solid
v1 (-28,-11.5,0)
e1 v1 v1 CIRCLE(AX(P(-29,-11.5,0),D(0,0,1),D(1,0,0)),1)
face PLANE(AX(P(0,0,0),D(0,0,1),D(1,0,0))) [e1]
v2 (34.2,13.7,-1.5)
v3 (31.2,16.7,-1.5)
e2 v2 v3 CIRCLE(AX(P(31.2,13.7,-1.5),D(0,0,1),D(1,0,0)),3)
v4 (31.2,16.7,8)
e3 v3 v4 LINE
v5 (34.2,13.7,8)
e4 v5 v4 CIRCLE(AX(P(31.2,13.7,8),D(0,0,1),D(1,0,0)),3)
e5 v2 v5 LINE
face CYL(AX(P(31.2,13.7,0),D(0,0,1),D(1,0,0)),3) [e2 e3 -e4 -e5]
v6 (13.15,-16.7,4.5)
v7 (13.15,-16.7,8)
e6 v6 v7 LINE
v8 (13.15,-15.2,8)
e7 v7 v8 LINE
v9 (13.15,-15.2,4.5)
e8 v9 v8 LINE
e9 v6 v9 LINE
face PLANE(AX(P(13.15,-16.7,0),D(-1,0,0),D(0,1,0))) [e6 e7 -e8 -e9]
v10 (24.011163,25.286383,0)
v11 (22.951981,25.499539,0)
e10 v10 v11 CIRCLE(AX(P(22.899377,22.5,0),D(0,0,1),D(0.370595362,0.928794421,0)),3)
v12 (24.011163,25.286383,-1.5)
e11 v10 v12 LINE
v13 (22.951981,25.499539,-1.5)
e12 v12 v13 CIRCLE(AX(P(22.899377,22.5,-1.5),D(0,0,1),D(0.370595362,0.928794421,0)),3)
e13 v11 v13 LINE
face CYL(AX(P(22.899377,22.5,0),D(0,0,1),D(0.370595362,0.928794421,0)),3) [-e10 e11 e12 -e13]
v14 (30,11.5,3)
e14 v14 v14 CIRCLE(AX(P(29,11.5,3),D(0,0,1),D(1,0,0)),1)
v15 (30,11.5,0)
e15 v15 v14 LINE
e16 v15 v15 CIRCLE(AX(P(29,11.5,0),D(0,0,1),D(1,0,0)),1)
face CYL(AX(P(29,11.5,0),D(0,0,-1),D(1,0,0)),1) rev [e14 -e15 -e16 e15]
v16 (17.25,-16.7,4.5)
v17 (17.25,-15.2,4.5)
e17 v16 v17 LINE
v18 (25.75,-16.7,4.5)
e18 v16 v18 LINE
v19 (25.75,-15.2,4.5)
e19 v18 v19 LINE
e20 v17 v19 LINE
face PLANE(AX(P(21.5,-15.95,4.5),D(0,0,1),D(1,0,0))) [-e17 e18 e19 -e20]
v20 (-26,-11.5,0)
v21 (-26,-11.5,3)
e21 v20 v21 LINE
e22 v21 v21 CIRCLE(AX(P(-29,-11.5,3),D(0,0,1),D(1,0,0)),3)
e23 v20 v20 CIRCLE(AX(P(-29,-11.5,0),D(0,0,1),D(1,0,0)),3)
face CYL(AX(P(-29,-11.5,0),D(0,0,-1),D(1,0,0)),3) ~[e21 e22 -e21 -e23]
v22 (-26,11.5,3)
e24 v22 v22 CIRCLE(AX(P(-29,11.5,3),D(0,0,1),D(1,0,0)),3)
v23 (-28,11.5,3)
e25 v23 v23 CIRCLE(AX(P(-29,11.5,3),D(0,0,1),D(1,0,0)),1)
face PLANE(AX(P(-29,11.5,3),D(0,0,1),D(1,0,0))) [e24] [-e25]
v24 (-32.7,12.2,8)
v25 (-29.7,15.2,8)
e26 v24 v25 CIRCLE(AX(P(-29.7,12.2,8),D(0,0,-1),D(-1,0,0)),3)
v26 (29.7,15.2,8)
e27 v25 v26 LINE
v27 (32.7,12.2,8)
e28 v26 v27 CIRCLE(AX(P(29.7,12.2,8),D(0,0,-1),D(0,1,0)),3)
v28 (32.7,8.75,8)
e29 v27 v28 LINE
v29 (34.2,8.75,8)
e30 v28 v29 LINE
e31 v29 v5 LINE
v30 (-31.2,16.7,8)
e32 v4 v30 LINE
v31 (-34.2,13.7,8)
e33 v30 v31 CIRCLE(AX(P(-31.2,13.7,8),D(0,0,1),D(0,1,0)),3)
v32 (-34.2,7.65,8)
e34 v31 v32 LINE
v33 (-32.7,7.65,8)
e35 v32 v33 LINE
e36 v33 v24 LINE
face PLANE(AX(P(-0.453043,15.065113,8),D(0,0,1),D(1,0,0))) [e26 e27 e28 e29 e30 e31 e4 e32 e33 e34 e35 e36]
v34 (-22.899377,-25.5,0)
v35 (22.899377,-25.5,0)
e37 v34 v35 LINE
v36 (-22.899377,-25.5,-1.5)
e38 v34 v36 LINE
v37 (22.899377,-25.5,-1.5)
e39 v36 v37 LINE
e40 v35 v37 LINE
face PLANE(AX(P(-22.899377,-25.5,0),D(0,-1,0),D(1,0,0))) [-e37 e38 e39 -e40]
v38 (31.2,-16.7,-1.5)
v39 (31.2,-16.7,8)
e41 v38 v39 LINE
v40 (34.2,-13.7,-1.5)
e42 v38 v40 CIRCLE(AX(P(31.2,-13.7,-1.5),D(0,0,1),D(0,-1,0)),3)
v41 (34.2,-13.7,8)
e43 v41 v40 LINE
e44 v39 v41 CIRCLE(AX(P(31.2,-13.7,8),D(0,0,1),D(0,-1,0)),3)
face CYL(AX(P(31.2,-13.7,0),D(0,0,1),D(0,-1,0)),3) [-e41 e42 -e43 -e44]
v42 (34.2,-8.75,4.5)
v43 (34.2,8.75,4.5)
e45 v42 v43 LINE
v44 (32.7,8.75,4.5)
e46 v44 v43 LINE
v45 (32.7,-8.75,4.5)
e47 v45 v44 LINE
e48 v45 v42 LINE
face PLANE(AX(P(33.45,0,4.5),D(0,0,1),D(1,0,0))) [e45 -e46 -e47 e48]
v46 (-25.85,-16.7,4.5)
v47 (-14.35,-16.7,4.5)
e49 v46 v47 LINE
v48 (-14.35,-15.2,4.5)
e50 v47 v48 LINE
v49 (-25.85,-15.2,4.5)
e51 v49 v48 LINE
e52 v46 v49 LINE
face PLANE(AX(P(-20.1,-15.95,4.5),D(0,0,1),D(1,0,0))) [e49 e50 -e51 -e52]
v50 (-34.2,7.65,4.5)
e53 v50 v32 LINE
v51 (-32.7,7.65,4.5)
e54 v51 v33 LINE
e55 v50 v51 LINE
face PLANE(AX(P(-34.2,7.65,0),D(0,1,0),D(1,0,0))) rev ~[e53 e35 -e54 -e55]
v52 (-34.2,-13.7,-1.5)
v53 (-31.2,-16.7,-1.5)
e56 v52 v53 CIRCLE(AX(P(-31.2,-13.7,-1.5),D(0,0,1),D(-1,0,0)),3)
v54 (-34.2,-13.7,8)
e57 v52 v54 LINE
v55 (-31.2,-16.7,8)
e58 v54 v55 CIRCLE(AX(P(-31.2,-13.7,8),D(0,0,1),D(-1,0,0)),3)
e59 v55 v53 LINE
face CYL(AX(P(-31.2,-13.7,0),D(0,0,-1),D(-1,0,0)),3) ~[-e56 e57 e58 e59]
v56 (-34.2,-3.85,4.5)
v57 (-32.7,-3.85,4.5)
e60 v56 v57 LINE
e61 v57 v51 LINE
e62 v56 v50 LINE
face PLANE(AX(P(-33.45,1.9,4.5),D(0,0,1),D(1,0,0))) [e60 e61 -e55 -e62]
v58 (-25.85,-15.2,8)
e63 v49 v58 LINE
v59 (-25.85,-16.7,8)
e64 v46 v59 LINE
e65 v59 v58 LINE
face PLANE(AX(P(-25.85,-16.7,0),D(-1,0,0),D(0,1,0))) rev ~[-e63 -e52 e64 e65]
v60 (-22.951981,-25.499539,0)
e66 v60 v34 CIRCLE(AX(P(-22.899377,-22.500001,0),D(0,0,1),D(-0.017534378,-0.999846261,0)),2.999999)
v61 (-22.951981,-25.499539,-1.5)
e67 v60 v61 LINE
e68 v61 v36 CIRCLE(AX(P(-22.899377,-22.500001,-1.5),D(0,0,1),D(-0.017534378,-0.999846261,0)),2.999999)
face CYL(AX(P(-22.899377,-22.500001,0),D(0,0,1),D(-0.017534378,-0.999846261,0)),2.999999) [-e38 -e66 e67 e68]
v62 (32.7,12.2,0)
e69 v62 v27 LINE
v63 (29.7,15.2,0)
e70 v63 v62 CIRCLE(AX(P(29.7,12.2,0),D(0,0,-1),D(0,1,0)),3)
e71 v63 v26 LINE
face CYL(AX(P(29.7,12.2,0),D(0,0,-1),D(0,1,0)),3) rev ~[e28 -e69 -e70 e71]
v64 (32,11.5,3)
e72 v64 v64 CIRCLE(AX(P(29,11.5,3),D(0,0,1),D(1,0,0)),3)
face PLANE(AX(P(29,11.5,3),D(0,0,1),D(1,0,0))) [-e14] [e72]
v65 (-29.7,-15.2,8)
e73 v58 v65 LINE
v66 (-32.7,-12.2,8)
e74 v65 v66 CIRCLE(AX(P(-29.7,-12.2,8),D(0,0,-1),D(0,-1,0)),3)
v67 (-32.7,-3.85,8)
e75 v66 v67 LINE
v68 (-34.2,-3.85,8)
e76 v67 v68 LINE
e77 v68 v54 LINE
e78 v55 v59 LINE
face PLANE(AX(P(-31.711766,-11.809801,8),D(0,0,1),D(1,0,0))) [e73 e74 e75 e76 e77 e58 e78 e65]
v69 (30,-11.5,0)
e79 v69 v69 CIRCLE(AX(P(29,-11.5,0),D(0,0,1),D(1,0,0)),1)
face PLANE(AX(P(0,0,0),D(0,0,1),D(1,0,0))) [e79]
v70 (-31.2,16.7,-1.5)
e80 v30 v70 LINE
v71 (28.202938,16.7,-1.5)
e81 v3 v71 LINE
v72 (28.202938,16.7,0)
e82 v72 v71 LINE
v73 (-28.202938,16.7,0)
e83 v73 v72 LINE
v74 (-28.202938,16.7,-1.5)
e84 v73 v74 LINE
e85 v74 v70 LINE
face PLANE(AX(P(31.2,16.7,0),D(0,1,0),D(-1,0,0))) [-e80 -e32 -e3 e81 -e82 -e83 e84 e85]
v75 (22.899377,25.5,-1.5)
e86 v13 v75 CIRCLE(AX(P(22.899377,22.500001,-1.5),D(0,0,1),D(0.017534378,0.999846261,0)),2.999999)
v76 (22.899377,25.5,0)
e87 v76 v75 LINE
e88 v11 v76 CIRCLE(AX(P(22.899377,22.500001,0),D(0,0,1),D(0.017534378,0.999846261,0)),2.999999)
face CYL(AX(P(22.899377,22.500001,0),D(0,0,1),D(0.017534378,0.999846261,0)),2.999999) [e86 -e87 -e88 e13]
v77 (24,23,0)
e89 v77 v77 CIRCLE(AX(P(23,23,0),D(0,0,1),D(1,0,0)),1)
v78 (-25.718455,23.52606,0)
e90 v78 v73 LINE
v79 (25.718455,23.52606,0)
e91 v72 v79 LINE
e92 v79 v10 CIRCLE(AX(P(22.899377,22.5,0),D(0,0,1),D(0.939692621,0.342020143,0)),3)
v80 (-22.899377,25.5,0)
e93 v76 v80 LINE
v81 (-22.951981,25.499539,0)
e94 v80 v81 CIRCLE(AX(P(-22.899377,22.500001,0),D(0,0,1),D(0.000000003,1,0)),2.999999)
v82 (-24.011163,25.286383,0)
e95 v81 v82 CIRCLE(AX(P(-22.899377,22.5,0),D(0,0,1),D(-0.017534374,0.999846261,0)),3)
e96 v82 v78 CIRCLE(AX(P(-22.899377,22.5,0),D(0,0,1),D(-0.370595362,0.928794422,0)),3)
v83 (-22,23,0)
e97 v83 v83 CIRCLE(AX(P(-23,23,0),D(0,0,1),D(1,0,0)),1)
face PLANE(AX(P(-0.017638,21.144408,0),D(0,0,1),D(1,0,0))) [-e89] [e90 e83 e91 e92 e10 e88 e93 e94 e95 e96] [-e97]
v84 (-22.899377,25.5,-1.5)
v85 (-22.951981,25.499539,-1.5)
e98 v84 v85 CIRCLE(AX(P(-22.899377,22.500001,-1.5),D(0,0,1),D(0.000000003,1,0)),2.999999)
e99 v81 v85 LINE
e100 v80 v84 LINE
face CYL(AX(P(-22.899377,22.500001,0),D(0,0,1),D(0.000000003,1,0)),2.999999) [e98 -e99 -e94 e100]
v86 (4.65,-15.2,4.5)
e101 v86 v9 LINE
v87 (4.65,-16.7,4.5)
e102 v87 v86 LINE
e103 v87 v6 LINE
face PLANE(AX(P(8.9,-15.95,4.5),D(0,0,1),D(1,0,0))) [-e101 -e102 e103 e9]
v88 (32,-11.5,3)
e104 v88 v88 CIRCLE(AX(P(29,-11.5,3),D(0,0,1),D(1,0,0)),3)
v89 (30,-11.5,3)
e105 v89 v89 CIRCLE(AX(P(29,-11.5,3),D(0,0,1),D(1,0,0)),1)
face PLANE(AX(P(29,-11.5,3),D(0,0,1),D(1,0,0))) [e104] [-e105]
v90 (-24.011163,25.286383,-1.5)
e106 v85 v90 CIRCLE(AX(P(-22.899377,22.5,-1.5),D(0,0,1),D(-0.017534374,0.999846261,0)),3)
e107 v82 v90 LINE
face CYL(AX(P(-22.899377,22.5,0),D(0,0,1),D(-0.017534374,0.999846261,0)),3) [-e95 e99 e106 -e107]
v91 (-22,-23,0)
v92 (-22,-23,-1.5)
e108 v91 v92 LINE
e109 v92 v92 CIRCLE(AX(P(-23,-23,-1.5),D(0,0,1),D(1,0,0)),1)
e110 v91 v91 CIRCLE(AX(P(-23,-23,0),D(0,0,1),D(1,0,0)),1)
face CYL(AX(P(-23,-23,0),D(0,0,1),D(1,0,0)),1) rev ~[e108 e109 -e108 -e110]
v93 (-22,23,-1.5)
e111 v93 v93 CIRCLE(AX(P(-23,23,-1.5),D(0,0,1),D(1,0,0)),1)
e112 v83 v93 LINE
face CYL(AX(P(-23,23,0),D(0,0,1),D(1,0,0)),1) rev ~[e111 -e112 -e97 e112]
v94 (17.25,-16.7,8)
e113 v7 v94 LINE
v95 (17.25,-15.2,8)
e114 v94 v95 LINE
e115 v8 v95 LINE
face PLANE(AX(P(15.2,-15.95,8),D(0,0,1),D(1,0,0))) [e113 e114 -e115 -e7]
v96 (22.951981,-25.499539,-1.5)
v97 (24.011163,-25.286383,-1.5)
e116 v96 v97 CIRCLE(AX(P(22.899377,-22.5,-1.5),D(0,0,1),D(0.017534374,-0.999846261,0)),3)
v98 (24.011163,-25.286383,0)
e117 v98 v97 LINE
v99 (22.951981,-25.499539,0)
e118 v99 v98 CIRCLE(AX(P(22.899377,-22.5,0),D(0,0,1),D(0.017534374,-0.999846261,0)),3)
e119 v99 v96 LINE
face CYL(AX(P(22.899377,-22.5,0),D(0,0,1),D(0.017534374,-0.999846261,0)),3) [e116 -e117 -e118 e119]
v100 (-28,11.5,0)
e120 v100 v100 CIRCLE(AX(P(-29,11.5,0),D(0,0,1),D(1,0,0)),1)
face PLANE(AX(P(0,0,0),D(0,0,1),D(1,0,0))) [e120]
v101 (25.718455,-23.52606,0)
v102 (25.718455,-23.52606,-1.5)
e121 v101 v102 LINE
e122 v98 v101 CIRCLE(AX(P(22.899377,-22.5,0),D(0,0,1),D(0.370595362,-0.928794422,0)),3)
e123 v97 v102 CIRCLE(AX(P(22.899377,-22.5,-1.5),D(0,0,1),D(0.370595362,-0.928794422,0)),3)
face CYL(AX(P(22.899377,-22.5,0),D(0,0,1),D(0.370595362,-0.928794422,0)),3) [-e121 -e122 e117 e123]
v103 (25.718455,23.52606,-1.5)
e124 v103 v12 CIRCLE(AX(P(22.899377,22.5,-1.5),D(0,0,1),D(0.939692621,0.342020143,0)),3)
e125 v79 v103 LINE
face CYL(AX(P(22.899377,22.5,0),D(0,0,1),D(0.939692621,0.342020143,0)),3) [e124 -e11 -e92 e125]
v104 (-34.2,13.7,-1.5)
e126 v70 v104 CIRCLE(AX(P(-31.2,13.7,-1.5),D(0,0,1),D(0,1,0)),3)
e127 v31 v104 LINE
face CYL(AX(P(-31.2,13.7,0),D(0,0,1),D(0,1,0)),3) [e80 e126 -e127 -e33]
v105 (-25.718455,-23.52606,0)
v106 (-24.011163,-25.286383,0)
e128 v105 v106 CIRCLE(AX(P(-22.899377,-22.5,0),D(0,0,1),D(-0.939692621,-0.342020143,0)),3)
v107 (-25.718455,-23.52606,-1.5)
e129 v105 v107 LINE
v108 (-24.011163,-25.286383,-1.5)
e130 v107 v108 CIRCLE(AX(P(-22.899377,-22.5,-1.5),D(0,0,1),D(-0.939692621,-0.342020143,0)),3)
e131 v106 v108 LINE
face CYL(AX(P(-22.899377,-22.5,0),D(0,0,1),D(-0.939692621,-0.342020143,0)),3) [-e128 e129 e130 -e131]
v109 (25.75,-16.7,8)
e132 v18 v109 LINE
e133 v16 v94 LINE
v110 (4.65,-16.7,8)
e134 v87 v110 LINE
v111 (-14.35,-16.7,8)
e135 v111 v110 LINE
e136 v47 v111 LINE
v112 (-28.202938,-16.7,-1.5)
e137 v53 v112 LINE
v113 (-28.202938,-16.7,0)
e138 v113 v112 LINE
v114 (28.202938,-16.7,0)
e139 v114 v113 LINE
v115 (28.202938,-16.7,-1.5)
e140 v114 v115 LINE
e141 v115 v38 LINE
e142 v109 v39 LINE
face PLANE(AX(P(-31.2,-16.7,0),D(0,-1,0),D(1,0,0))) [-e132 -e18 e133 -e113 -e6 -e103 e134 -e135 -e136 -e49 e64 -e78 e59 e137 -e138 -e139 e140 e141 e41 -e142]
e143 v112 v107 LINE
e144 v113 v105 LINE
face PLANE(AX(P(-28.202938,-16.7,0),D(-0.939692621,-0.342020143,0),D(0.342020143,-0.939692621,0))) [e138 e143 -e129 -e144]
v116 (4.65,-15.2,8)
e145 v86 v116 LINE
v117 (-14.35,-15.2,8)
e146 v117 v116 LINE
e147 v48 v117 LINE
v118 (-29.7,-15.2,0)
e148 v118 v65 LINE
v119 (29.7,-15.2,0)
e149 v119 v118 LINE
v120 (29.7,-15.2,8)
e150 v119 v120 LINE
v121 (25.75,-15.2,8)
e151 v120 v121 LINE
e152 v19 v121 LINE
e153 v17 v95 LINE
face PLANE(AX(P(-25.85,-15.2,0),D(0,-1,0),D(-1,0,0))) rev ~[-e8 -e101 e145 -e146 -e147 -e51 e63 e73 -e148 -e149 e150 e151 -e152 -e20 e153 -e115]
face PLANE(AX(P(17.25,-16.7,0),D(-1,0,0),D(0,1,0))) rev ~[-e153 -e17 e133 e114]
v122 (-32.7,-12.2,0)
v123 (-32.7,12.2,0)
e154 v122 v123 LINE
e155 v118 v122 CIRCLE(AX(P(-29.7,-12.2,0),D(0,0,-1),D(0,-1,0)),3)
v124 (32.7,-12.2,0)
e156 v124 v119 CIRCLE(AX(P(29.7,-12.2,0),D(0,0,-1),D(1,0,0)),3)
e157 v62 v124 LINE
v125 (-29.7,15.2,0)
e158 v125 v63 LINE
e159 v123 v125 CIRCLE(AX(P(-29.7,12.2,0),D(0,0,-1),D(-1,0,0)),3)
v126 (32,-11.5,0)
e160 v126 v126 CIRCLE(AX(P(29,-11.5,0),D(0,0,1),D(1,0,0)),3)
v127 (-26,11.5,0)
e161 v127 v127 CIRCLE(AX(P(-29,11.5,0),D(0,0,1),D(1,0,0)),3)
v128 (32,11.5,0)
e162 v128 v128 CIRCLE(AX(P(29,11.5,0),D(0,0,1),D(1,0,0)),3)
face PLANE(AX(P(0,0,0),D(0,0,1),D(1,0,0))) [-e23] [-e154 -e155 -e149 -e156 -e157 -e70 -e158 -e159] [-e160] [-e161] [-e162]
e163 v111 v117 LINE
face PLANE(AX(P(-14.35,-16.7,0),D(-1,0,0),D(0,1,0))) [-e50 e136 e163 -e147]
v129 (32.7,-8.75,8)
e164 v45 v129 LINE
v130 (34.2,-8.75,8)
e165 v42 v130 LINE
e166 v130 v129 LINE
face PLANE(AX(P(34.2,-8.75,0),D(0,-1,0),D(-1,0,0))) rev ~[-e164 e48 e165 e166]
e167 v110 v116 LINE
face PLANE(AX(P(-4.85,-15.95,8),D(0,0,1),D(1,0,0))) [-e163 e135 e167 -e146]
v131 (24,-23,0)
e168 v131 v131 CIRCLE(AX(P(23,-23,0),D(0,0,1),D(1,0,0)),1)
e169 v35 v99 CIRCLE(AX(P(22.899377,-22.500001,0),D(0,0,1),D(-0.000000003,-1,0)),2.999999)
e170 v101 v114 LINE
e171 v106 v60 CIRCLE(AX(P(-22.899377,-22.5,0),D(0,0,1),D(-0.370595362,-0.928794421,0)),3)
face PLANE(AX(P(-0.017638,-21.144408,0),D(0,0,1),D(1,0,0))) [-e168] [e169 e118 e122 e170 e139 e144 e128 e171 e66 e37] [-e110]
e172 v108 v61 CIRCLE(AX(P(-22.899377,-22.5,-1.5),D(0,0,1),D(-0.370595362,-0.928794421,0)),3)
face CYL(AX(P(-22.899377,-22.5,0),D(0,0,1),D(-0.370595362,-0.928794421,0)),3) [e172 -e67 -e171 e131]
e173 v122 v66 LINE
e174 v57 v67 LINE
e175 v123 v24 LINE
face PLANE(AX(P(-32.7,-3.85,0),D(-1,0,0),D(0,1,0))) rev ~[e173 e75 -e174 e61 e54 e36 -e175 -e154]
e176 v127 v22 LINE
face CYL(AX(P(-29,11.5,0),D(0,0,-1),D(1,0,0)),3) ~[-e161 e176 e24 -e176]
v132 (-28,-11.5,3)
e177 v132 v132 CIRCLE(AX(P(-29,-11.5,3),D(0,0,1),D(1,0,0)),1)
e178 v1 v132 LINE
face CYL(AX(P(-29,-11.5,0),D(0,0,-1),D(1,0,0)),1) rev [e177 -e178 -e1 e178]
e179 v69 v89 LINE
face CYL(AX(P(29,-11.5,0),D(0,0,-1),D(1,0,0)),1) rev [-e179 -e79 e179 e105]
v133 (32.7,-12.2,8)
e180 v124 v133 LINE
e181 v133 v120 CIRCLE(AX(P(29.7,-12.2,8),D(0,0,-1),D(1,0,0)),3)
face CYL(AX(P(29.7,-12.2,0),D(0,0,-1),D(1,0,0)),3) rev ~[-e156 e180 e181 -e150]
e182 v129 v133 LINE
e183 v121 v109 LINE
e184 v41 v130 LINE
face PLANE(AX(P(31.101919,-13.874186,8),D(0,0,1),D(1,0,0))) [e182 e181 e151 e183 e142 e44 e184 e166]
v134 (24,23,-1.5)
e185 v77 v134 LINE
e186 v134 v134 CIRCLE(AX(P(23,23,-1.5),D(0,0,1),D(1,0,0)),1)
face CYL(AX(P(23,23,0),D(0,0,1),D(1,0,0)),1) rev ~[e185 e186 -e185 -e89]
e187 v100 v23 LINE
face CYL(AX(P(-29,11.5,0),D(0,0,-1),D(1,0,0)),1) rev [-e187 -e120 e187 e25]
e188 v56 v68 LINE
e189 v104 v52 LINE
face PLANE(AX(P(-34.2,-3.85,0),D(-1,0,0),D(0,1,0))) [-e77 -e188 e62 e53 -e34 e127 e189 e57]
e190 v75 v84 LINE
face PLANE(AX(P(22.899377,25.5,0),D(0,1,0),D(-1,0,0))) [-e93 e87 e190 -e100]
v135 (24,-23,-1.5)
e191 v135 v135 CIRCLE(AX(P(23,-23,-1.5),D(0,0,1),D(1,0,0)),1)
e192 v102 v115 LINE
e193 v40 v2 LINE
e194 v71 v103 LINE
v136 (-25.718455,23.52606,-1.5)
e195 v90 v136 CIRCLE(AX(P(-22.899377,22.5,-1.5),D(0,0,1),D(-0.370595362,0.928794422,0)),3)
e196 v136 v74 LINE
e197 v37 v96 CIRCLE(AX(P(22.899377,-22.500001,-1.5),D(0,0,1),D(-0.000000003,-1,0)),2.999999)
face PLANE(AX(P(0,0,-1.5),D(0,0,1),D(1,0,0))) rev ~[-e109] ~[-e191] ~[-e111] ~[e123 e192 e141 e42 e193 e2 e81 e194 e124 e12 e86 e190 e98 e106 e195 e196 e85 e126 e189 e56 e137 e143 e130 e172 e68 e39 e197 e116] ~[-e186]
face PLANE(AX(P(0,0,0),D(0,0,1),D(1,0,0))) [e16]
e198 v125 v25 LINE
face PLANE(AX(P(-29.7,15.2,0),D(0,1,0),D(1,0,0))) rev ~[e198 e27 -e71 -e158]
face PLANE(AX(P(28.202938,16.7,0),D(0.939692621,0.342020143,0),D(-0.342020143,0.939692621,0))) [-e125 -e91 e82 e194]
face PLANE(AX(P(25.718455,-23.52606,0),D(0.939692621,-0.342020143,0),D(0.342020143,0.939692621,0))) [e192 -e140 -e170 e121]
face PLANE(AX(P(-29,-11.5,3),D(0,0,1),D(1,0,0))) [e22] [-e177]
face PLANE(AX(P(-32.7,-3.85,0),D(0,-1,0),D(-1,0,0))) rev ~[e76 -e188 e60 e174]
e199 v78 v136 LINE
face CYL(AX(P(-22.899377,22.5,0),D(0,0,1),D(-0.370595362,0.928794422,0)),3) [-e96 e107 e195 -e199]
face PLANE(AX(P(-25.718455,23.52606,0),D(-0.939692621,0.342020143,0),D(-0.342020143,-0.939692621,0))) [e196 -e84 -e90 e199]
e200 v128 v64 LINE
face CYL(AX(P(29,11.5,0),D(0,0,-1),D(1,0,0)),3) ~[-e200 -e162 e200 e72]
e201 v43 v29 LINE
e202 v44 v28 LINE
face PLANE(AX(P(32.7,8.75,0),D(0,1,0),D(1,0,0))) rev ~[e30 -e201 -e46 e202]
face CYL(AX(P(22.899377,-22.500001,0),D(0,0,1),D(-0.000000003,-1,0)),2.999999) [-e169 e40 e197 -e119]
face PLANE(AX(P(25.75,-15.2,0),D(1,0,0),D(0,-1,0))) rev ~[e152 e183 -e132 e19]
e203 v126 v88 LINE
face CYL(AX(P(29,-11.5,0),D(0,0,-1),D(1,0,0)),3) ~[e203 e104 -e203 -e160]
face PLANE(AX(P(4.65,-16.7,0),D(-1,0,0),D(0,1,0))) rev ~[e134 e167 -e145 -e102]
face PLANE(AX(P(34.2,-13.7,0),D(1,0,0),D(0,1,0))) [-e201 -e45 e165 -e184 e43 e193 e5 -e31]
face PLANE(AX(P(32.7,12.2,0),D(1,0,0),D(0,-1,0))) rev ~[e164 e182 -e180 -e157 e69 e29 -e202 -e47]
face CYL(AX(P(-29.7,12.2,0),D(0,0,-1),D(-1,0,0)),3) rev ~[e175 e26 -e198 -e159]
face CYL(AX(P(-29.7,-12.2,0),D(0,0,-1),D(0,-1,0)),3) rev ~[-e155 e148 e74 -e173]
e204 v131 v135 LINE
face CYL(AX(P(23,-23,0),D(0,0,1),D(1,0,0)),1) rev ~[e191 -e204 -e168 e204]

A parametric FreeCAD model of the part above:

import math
import FreeCAD as App
import Part
import Sketcher
from FreeCAD import Vector
Q = App.Units.Quantity

doc = App.newDocument("Part")
body = doc.addObject("PartDesign::Body", "Body")

sketch1 = body.newObject("Sketcher::SketchObject", "Sketch")
sketch1.AttachmentSupport = (doc.getObject("XY_Plane"), [""])
sketch1.MapMode = "FlatFace"
sketch1.addGeometry([
    Part.ArcOfCircle(Part.Circle(Vector(31.2, 13.7, 0), Vector(0, 0, 1), 3), math.radians(0), math.radians(90)),
    Part.LineSegment(Vector(31.2, 16.7, 0), Vector(-31.2, 16.7, 0)),
    Part.ArcOfCircle(Part.Circle(Vector(-31.2, 13.7, 0), Vector(0, 0, 1), 3), math.radians(90), math.radians(180)),
    Part.LineSegment(Vector(-34.2, 13.7, 0), Vector(-34.2, -13.7, 0)),
    Part.ArcOfCircle(Part.Circle(Vector(-31.2, -13.7, 0), Vector(0, 0, 1), 3), math.radians(180), math.radians(270)),
    Part.LineSegment(Vector(-31.2, -16.7, 0), Vector(31.2, -16.7, 0)),
    Part.ArcOfCircle(Part.Circle(Vector(31.2, -13.7, 0), Vector(0, 0, 1), 3), math.radians(-90), math.radians(0)),
    Part.LineSegment(Vector(34.2, -13.7, 0), Vector(34.2, 13.7, 0)),
], False)
sketch1.addConstraint([
    Sketcher.Constraint("Tangent", 0, 2, 1, 1),
    Sketcher.Constraint("Tangent", 1, 2, 2, 1),
    Sketcher.Constraint("Tangent", 2, 2, 3, 1),
    Sketcher.Constraint("Tangent", 3, 2, 4, 1),
    Sketcher.Constraint("Tangent", 4, 2, 5, 1),
    Sketcher.Constraint("Tangent", 5, 2, 6, 1),
    Sketcher.Constraint("Tangent", 6, 2, 7, 1),
    Sketcher.Constraint("Tangent", 7, 2, 0, 1),
    Sketcher.Constraint("Horizontal", 1),
    Sketcher.Constraint("Vertical", 3),
    Sketcher.Constraint("Horizontal", 5),
    Sketcher.Constraint("Vertical", 7),
    Sketcher.Constraint("Equal", 0, 2),
    Sketcher.Constraint("Equal", 2, 4),
    Sketcher.Constraint("Equal", 4, 6),
    Sketcher.Constraint("Symmetric", 0, 3, 4, 3, -1, 1),
    Sketcher.Constraint("Radius", 0, 3.0),
    Sketcher.Constraint("DistanceX", 1, 2, 1, 1, 62.4),
    Sketcher.Constraint("DistanceY", 3, 2, 3, 1, 27.4),
])
pad1 = body.newObject("PartDesign::Pad", "Pad")
pad1.Profile = sketch1
pad1.Length = 1.5
pad1.Reversed = True

sketch2 = body.newObject("Sketcher::SketchObject", "Sketch001")
sketch2.AttachmentSupport = (doc.getObject("XY_Plane"), [""])
sketch2.MapMode = "FlatFace"
sketch2.addGeometry([
    Part.Circle(Vector(-29, 11.5, 0), Vector(0, 0, 1), 3),
    Part.Circle(Vector(-29, 11.5, 0), Vector(0, 0, 1), 1),
    Part.Circle(Vector(-29, -11.5, 0), Vector(0, 0, 1), 3),
    Part.Circle(Vector(-29, -11.5, 0), Vector(0, 0, 1), 1),
    Part.Circle(Vector(29, 11.5, 0), Vector(0, 0, 1), 3),
    Part.Circle(Vector(29, 11.5, 0), Vector(0, 0, 1), 1),
    Part.Circle(Vector(29, -11.5, 0), Vector(0, 0, 1), 3),
    Part.Circle(Vector(29, -11.5, 0), Vector(0, 0, 1), 1),
], False)
sketch2.addConstraint([
    Sketcher.Constraint("Coincident", 1, 3, 0, 3),
    Sketcher.Constraint("Coincident", 3, 3, 2, 3),
    Sketcher.Constraint("Coincident", 5, 3, 4, 3),
    Sketcher.Constraint("Coincident", 7, 3, 6, 3),
    Sketcher.Constraint("Equal", 0, 2),
    Sketcher.Constraint("Equal", 1, 3),
    Sketcher.Constraint("Equal", 2, 4),
    Sketcher.Constraint("Equal", 3, 5),
    Sketcher.Constraint("Equal", 4, 6),
    Sketcher.Constraint("Equal", 5, 7),
    Sketcher.Constraint("Symmetric", 2, 3, 4, 3, -1, 1),
    Sketcher.Constraint("Symmetric", 0, 3, 6, 3, -1, 1),
    Sketcher.Constraint("Symmetric", 0, 3, 4, 3, -2),
    Sketcher.Constraint("Diameter", 0, 6.0),
    Sketcher.Constraint("Diameter", 1, 2.0),
    Sketcher.Constraint("DistanceX", 0, 3, -1, 1, 29.0),
    Sketcher.Constraint("DistanceY", 2, 3, 0, 3, 23.0),
])
pad2 = body.newObject("PartDesign::Pad", "Pad001")
pad2.Profile = sketch2
pad2.Length = 3

sketch3 = body.newObject("Sketcher::SketchObject", "Sketch002")
sketch3.AttachmentSupport = (doc.getObject("XY_Plane"), [""])
sketch3.MapMode = "FlatFace"
sketch3.addGeometry([
    Part.LineSegment(Vector(-32.7, -12.2, 0), Vector(-32.7, -3.9, 0)),
    Part.LineSegment(Vector(-32.7, -3.9, 0), Vector(-34.2, -3.9, 0)),
    Part.LineSegment(Vector(-34.2, -3.9, 0), Vector(-34.2, -13.7, 0)),
    Part.ArcOfCircle(Part.Circle(Vector(-31.2, -13.7, 0), Vector(0, 0, 1), 3), math.radians(180), math.radians(270)),
    Part.LineSegment(Vector(-31.2, -16.7, 0), Vector(-25.9, -16.7, 0)),
    Part.LineSegment(Vector(-25.9, -16.7, 0), Vector(-25.9, -15.2, 0)),
    Part.LineSegment(Vector(-25.9, -15.2, 0), Vector(-29.7, -15.2, 0)),
    Part.ArcOfCircle(Part.Circle(Vector(-29.7, -12.2, 0), Vector(0, 0, 1), 3), math.radians(180), math.radians(270)),
    Part.ArcOfCircle(Part.Circle(Vector(-29.7, 12.2, 0), Vector(0, 0, 1), 3), math.radians(90), math.radians(180)),
    Part.LineSegment(Vector(-29.7, 15.2, 0), Vector(29.7, 15.2, 0)),
    Part.ArcOfCircle(Part.Circle(Vector(29.7, 12.2, 0), Vector(0, 0, 1), 3), math.radians(0), math.radians(90)),
    Part.LineSegment(Vector(32.7, 12.2, 0), Vector(32.7, 8.8, 0)),
    Part.LineSegment(Vector(32.7, 8.8, 0), Vector(34.2, 8.8, 0)),
    Part.LineSegment(Vector(34.2, 8.8, 0), Vector(34.2, 13.7, 0)),
    Part.ArcOfCircle(Part.Circle(Vector(31.2, 13.7, 0), Vector(0, 0, 1), 3), math.radians(0), math.radians(90)),
    Part.LineSegment(Vector(31.2, 16.7, 0), Vector(-31.2, 16.7, 0)),
    Part.ArcOfCircle(Part.Circle(Vector(-31.2, 13.7, 0), Vector(0, 0, 1), 3), math.radians(90), math.radians(180)),
    Part.LineSegment(Vector(-34.2, 13.7, 0), Vector(-34.2, 7.7, 0)),
    Part.LineSegment(Vector(-34.2, 7.7, 0), Vector(-32.7, 7.7, 0)),
    Part.LineSegment(Vector(-32.7, 7.7, 0), Vector(-32.7, 12.2, 0)),
    Part.LineSegment(Vector(-14.3, -15.2, 0), Vector(-14.3, -16.7, 0)),
    Part.LineSegment(Vector(-14.3, -16.7, 0), Vector(4.7, -16.7, 0)),
    Part.LineSegment(Vector(4.7, -16.7, 0), Vector(4.7, -15.2, 0)),
    Part.LineSegment(Vector(4.7, -15.2, 0), Vector(-14.3, -15.2, 0)),
    Part.LineSegment(Vector(13.2, -15.2, 0), Vector(13.2, -16.7, 0)),
    Part.LineSegment(Vector(13.2, -16.7, 0), Vector(17.2, -16.7, 0)),
    Part.LineSegment(Vector(17.2, -16.7, 0), Vector(17.2, -15.2, 0)),
    Part.LineSegment(Vector(17.2, -15.2, 0), Vector(13.2, -15.2, 0)),
    Part.LineSegment(Vector(34.2, -8.8, 0), Vector(32.7, -8.8, 0)),
    Part.LineSegment(Vector(32.7, -8.8, 0), Vector(32.7, -12.2, 0)),
    Part.ArcOfCircle(Part.Circle(Vector(29.7, -12.2, 0), Vector(0, 0, 1), 3), math.radians(-90), math.radians(0)),
    Part.LineSegment(Vector(29.7, -15.2, 0), Vector(25.8, -15.2, 0)),
    Part.LineSegment(Vector(25.8, -15.2, 0), Vector(25.8, -16.7, 0)),
    Part.LineSegment(Vector(25.8, -16.7, 0), Vector(31.2, -16.7, 0)),
    Part.ArcOfCircle(Part.Circle(Vector(31.2, -13.7, 0), Vector(0, 0, 1), 3), math.radians(-90), math.radians(0)),
    Part.LineSegment(Vector(34.2, -13.7, 0), Vector(34.2, -8.8, 0)),
], False)
sketch3.addConstraint([
    Sketcher.Constraint("Coincident", 0, 2, 1, 1),
    Sketcher.Constraint("Coincident", 1, 2, 2, 1),
    Sketcher.Constraint("Tangent", 2, 2, 3, 1),
    Sketcher.Constraint("Tangent", 3, 2, 4, 1),
    Sketcher.Constraint("Coincident", 4, 2, 5, 1),
    Sketcher.Constraint("Coincident", 5, 2, 6, 1),
    Sketcher.Constraint("Tangent", 6, 2, 7, 2),
    Sketcher.Constraint("Tangent", 7, 1, 0, 1),
    Sketcher.Constraint("Tangent", 8, 1, 9, 1),
    Sketcher.Constraint("Tangent", 9, 2, 10, 2),
    Sketcher.Constraint("Tangent", 10, 1, 11, 1),
    Sketcher.Constraint("Coincident", 11, 2, 12, 1),
    Sketcher.Constraint("Coincident", 12, 2, 13, 1),
    Sketcher.Constraint("Tangent", 13, 2, 14, 1),
    Sketcher.Constraint("Tangent", 14, 2, 15, 1),
    Sketcher.Constraint("Tangent", 15, 2, 16, 1),
    Sketcher.Constraint("Tangent", 16, 2, 17, 1),
    Sketcher.Constraint("Coincident", 17, 2, 18, 1),
    Sketcher.Constraint("Coincident", 18, 2, 19, 1),
    Sketcher.Constraint("Tangent", 19, 2, 8, 2),
    Sketcher.Constraint("Coincident", 20, 2, 21, 1),
    Sketcher.Constraint("Coincident", 21, 2, 22, 1),
    Sketcher.Constraint("Coincident", 22, 2, 23, 1),
    Sketcher.Constraint("Coincident", 23, 2, 20, 1),
    Sketcher.Constraint("Coincident", 24, 2, 25, 1),
    Sketcher.Constraint("Coincident", 25, 2, 26, 1),
    Sketcher.Constraint("Coincident", 26, 2, 27, 1),
    Sketcher.Constraint("Coincident", 27, 2, 24, 1),
    Sketcher.Constraint("Coincident", 28, 2, 29, 1),
    Sketcher.Constraint("Tangent", 29, 2, 30, 2),
    Sketcher.Constraint("Tangent", 30, 1, 31, 1),
    Sketcher.Constraint("Coincident", 31, 2, 32, 1),
    Sketcher.Constraint("Coincident", 32, 2, 33, 1),
    Sketcher.Constraint("Tangent", 33, 2, 34, 1),
    Sketcher.Constraint("Tangent", 34, 2, 35, 1),
    Sketcher.Constraint("Coincident", 35, 2, 28, 1),
    Sketcher.Constraint("Vertical", 0),
    Sketcher.Constraint("Horizontal", 1),
    Sketcher.Constraint("Vertical", 2),
    Sketcher.Constraint("Horizontal", 4),
    Sketcher.Constraint("Vertical", 5),
    Sketcher.Constraint("Horizontal", 6),
    Sketcher.Constraint("Horizontal", 9),
    Sketcher.Constraint("Vertical", 11),
    Sketcher.Constraint("Horizontal", 12),
    Sketcher.Constraint("Vertical", 13),
    Sketcher.Constraint("Horizontal", 15),
    Sketcher.Constraint("Vertical", 17),
    Sketcher.Constraint("Horizontal", 18),
    Sketcher.Constraint("Vertical", 19),
    Sketcher.Constraint("Vertical", 20),
    Sketcher.Constraint("Horizontal", 21),
    Sketcher.Constraint("Vertical", 22),
    Sketcher.Constraint("Horizontal", 23),
    Sketcher.Constraint("Vertical", 24),
    Sketcher.Constraint("Horizontal", 25),
    Sketcher.Constraint("Vertical", 26),
    Sketcher.Constraint("Horizontal", 27),
    Sketcher.Constraint("Horizontal", 28),
    Sketcher.Constraint("Vertical", 29),
    Sketcher.Constraint("Horizontal", 31),
    Sketcher.Constraint("Vertical", 32),
    Sketcher.Constraint("Horizontal", 33),
    Sketcher.Constraint("Vertical", 35),
    Sketcher.Constraint("Equal", 3, 7),
    Sketcher.Constraint("Equal", 7, 8),
    Sketcher.Constraint("Equal", 8, 10),
    Sketcher.Constraint("Equal", 10, 14),
    Sketcher.Constraint("Equal", 14, 16),
    Sketcher.Constraint("Equal", 16, 30),
    Sketcher.Constraint("Equal", 30, 34),
    Sketcher.Constraint("Symmetric", 7, 3, 10, 3, -1, 1),
    Sketcher.Constraint("Symmetric", 3, 3, 14, 3, -1, 1),
    Sketcher.Constraint("Symmetric", 8, 3, 30, 3, -1, 1),
    Sketcher.Constraint("Symmetric", 16, 3, 34, 3, -1, 1),
    Sketcher.Constraint("Symmetric", 11, 2, 28, 2, -1),
    Sketcher.Constraint("Horizontal", 4, 2, 20, 2),
    Sketcher.Constraint("Horizontal", 6, 2, 22, 2),
    Sketcher.Constraint("Horizontal", 21, 2, 24, 2),
    Sketcher.Constraint("Horizontal", 23, 2, 26, 2),
    Sketcher.Constraint("Vertical", 3, 3, 16, 3),
    Sketcher.Constraint("Equal", 28, 5),
    Sketcher.Constraint("Radius", 3, 3.0),
    Sketcher.Constraint("DistanceX", 21, 1, 21, 2, 19.0),
    Sketcher.Constraint("DistanceX", 1, 2, 1, 1, 1.5),
    Sketcher.Constraint("DistanceX", 9, 1, 9, 2, 59.4),
    Sketcher.Constraint("DistanceX", 25, 1, 25, 2, 4.1),
    Sketcher.Constraint("DistanceX", 4, 1, 4, 2, 5.35),
    Sketcher.Constraint("DistanceX", 31, 2, 31, 1, 3.95),
    Sketcher.Constraint("DistanceY", 0, 1, 0, 2, 8.35),
    Sketcher.Constraint("DistanceY", 11, 2, 11, 1, 3.45),
    Sketcher.Constraint("DistanceY", 17, 2, 17, 1, 6.05),
    Sketcher.Constraint("DistanceY", 3, 3, -1, 1, 13.7),
    Sketcher.Constraint("DistanceX", 4, 2, 20, 2, 11.5),
    Sketcher.Constraint("DistanceX", 21, 2, 24, 2, 8.5),
])
pad3 = body.newObject("PartDesign::Pad", "Pad002")
pad3.Profile = sketch3
pad3.Length = 8

sketch4 = body.newObject("Sketcher::SketchObject", "Sketch003")
sketch4.AttachmentSupport = (doc.getObject("XY_Plane"), [""])
sketch4.MapMode = "FlatFace"
sketch4.addGeometry([
    Part.LineSegment(Vector(-34.2, 7.7, 0), Vector(-34.2, -3.9, 0)),
    Part.LineSegment(Vector(-34.2, -3.9, 0), Vector(-32.7, -3.9, 0)),
    Part.LineSegment(Vector(-32.7, -3.9, 0), Vector(-32.7, 7.7, 0)),
    Part.LineSegment(Vector(-32.7, 7.7, 0), Vector(-34.2, 7.7, 0)),
    Part.LineSegment(Vector(-25.9, -15.2, 0), Vector(-25.9, -16.7, 0)),
    Part.LineSegment(Vector(-25.9, -16.7, 0), Vector(-14.3, -16.7, 0)),
    Part.LineSegment(Vector(-14.3, -16.7, 0), Vector(-14.3, -15.2, 0)),
    Part.LineSegment(Vector(-14.3, -15.2, 0), Vector(-25.9, -15.2, 0)),
    Part.LineSegment(Vector(4.7, -15.2, 0), Vector(4.7, -16.7, 0)),
    Part.LineSegment(Vector(4.7, -16.7, 0), Vector(13.2, -16.7, 0)),
    Part.LineSegment(Vector(13.2, -16.7, 0), Vector(13.2, -15.2, 0)),
    Part.LineSegment(Vector(13.2, -15.2, 0), Vector(4.7, -15.2, 0)),
    Part.LineSegment(Vector(17.2, -15.2, 0), Vector(17.2, -16.7, 0)),
    Part.LineSegment(Vector(17.2, -16.7, 0), Vector(25.8, -16.7, 0)),
    Part.LineSegment(Vector(25.8, -16.7, 0), Vector(25.8, -15.2, 0)),
    Part.LineSegment(Vector(25.8, -15.2, 0), Vector(17.2, -15.2, 0)),
    Part.LineSegment(Vector(32.7, 8.8, 0), Vector(32.7, -8.8, 0)),
    Part.LineSegment(Vector(32.7, -8.8, 0), Vector(34.2, -8.8, 0)),
    Part.LineSegment(Vector(34.2, -8.8, 0), Vector(34.2, 8.8, 0)),
    Part.LineSegment(Vector(34.2, 8.8, 0), Vector(32.7, 8.8, 0)),
], False)
sketch4.addConstraint([
    Sketcher.Constraint("Coincident", 0, 2, 1, 1),
    Sketcher.Constraint("Coincident", 1, 2, 2, 1),
    Sketcher.Constraint("Coincident", 2, 2, 3, 1),
    Sketcher.Constraint("Coincident", 3, 2, 0, 1),
    Sketcher.Constraint("Coincident", 4, 2, 5, 1),
    Sketcher.Constraint("Coincident", 5, 2, 6, 1),
    Sketcher.Constraint("Coincident", 6, 2, 7, 1),
    Sketcher.Constraint("Coincident", 7, 2, 4, 1),
    Sketcher.Constraint("Coincident", 8, 2, 9, 1),
    Sketcher.Constraint("Coincident", 9, 2, 10, 1),
    Sketcher.Constraint("Coincident", 10, 2, 11, 1),
    Sketcher.Constraint("Coincident", 11, 2, 8, 1),
    Sketcher.Constraint("Coincident", 12, 2, 13, 1),
    Sketcher.Constraint("Coincident", 13, 2, 14, 1),
    Sketcher.Constraint("Coincident", 14, 2, 15, 1),
    Sketcher.Constraint("Coincident", 15, 2, 12, 1),
    Sketcher.Constraint("Coincident", 16, 2, 17, 1),
    Sketcher.Constraint("Coincident", 17, 2, 18, 1),
    Sketcher.Constraint("Coincident", 18, 2, 19, 1),
    Sketcher.Constraint("Coincident", 19, 2, 16, 1),
    Sketcher.Constraint("Vertical", 0),
    Sketcher.Constraint("Horizontal", 1),
    Sketcher.Constraint("Vertical", 2),
    Sketcher.Constraint("Horizontal", 3),
    Sketcher.Constraint("Vertical", 4),
    Sketcher.Constraint("Horizontal", 5),
    Sketcher.Constraint("Vertical", 6),
    Sketcher.Constraint("Horizontal", 7),
    Sketcher.Constraint("Vertical", 8),
    Sketcher.Constraint("Horizontal", 9),
    Sketcher.Constraint("Vertical", 10),
    Sketcher.Constraint("Horizontal", 11),
    Sketcher.Constraint("Vertical", 12),
    Sketcher.Constraint("Horizontal", 13),
    Sketcher.Constraint("Vertical", 14),
    Sketcher.Constraint("Horizontal", 15),
    Sketcher.Constraint("Vertical", 16),
    Sketcher.Constraint("Horizontal", 17),
    Sketcher.Constraint("Vertical", 18),
    Sketcher.Constraint("Horizontal", 19),
    Sketcher.Constraint("Horizontal", 5, 2, 8, 2),
    Sketcher.Constraint("Horizontal", 7, 2, 10, 2),
    Sketcher.Constraint("Horizontal", 9, 2, 12, 2),
    Sketcher.Constraint("Horizontal", 11, 2, 14, 2),
    Sketcher.Constraint("Equal", 11, 13),
    Sketcher.Constraint("Equal", 3, 17),
    Sketcher.Constraint("Equal", 7, 0),
    Sketcher.Constraint("Equal", 19, 4),
    Sketcher.Constraint("DistanceX", 1, 1, 1, 2, 1.5),
    Sketcher.Constraint("DistanceX", 5, 1, 5, 2, 11.5),
    Sketcher.Constraint("DistanceX", 9, 1, 9, 2, 8.5),
    Sketcher.Constraint("DistanceY", 16, 2, 16, 1, 17.5),
    Sketcher.Constraint("DistanceX", 5, 2, 8, 2, 19.0),
    Sketcher.Constraint("DistanceX", 0, 2, -1, 1, 34.2),
    Sketcher.Constraint("DistanceY", 4, 2, -1, 1, 16.7),
    Sketcher.Constraint("DistanceX", -1, 1, 16, 2, 32.7),
    Sketcher.Constraint("DistanceX", 9, 2, 12, 2, 4.1),
    Sketcher.Constraint("DistanceY", 0, 2, -1, 1, 3.85),
    Sketcher.Constraint("DistanceX", 4, 2, -1, 1, 25.85),
    Sketcher.Constraint("DistanceY", 16, 2, -1, 1, 8.75),
])
pad4 = body.newObject("PartDesign::Pad", "Pad003")
pad4.Profile = sketch4
pad4.Length = 4.5

sketch5 = body.newObject("Sketcher::SketchObject", "Sketch004")
sketch5.AttachmentSupport = (doc.getObject("XY_Plane"), [""])
sketch5.MapMode = "FlatFace"
sketch5.addGeometry([
    Part.LineSegment(Vector(28.2, -16.7, 0), Vector(-28.2, -16.7, 0)),
    Part.LineSegment(Vector(-28.2, -16.7, 0), Vector(-25.72, -23.53, 0)),
    Part.ArcOfCircle(Part.Circle(Vector(-22.9, -22.5, 0), Vector(0, 0, 1), 3), math.radians(-160), math.radians(-112)),
    Part.ArcOfCircle(Part.Circle(Vector(-22.9, -22.5, 0), Vector(0, 0, 1), 3), math.radians(-112), math.radians(-91)),
    Part.ArcOfCircle(Part.Circle(Vector(-22.9, -22.5, 0), Vector(0, 0, 1), 3), math.radians(-91), math.radians(-90)),
    Part.LineSegment(Vector(-22.9, -25.5, 0), Vector(22.9, -25.5, 0)),
    Part.ArcOfCircle(Part.Circle(Vector(22.9, -22.5, 0), Vector(0, 0, 1), 3), math.radians(-90), math.radians(-89)),
    Part.ArcOfCircle(Part.Circle(Vector(22.9, -22.5, 0), Vector(0, 0, 1), 3), math.radians(-89), math.radians(-68)),
    Part.ArcOfCircle(Part.Circle(Vector(22.9, -22.5, 0), Vector(0, 0, 1), 3), math.radians(-68), math.radians(-20)),
    Part.LineSegment(Vector(25.72, -23.53, 0), Vector(28.2, -16.7, 0)),
    Part.Circle(Vector(-23, -23, 0), Vector(0, 0, 1), 1),
    Part.Circle(Vector(23, -23, 0), Vector(0, 0, 1), 1),
    Part.LineSegment(Vector(-25.72, 23.53, 0), Vector(-28.2, 16.7, 0)),
    Part.LineSegment(Vector(-28.2, 16.7, 0), Vector(28.2, 16.7, 0)),
    Part.LineSegment(Vector(28.2, 16.7, 0), Vector(25.72, 23.53, 0)),
    Part.ArcOfCircle(Part.Circle(Vector(22.9, 22.5, 0), Vector(0, 0, 1), 3), math.radians(20), math.radians(68)),
    Part.ArcOfCircle(Part.Circle(Vector(22.9, 22.5, 0), Vector(0, 0, 1), 3), math.radians(68), math.radians(89)),
    Part.ArcOfCircle(Part.Circle(Vector(22.9, 22.5, 0), Vector(0, 0, 1), 3), math.radians(89), math.radians(90)),
    Part.LineSegment(Vector(22.9, 25.5, 0), Vector(-22.9, 25.5, 0)),
    Part.ArcOfCircle(Part.Circle(Vector(-22.9, 22.5, 0), Vector(0, 0, 1), 3), math.radians(90), math.radians(91)),
    Part.ArcOfCircle(Part.Circle(Vector(-22.9, 22.5, 0), Vector(0, 0, 1), 3), math.radians(91), math.radians(112)),
    Part.ArcOfCircle(Part.Circle(Vector(-22.9, 22.5, 0), Vector(0, 0, 1), 3), math.radians(112), math.radians(160)),
    Part.Circle(Vector(-23, 23, 0), Vector(0, 0, 1), 1),
    Part.Circle(Vector(23, 23, 0), Vector(0, 0, 1), 1),
], False)
sketch5.addConstraint([
    Sketcher.Constraint("Coincident", 0, 2, 1, 1),
    Sketcher.Constraint("Tangent", 1, 2, 2, 1),
    Sketcher.Constraint("Tangent", 2, 2, 3, 1),
    Sketcher.Constraint("Tangent", 3, 2, 4, 1),
    Sketcher.Constraint("Tangent", 4, 2, 5, 1),
    Sketcher.Constraint("Tangent", 5, 2, 6, 1),
    Sketcher.Constraint("Tangent", 6, 2, 7, 1),
    Sketcher.Constraint("Tangent", 7, 2, 8, 1),
    Sketcher.Constraint("Tangent", 8, 2, 9, 1),
    Sketcher.Constraint("Coincident", 9, 2, 0, 1),
    Sketcher.Constraint("Coincident", 12, 2, 13, 1),
    Sketcher.Constraint("Coincident", 13, 2, 14, 1),
    Sketcher.Constraint("Tangent", 14, 2, 15, 1),
    Sketcher.Constraint("Tangent", 15, 2, 16, 1),
    Sketcher.Constraint("Tangent", 16, 2, 17, 1),
    Sketcher.Constraint("Tangent", 17, 2, 18, 1),
    Sketcher.Constraint("Tangent", 18, 2, 19, 1),
    Sketcher.Constraint("Tangent", 19, 2, 20, 1),
    Sketcher.Constraint("Tangent", 20, 2, 21, 1),
    Sketcher.Constraint("Tangent", 21, 2, 12, 1),
    Sketcher.Constraint("Horizontal", 0),
    Sketcher.Constraint("Horizontal", 5),
    Sketcher.Constraint("Horizontal", 13),
    Sketcher.Constraint("Horizontal", 18),
    Sketcher.Constraint("Coincident", 4, 3, 2, 3),
    Sketcher.Constraint("Coincident", 8, 3, 6, 3),
    Sketcher.Constraint("Coincident", 17, 3, 15, 3),
    Sketcher.Constraint("Coincident", 21, 3, 19, 3),
    Sketcher.Constraint("Equal", 4, 6),
    Sketcher.Constraint("Equal", 10, 11),
    Sketcher.Constraint("Equal", 8, 15),
    Sketcher.Constraint("Equal", 17, 19),
    Sketcher.Constraint("Equal", 11, 22),
    Sketcher.Constraint("Equal", 22, 23),
    Sketcher.Constraint("Symmetric", 2, 3, 15, 3, -1, 1),
    Sketcher.Constraint("Symmetric", 11, 3, 22, 3, -1, 1),
    Sketcher.Constraint("Symmetric", 10, 3, 23, 3, -1, 1),
    Sketcher.Constraint("Symmetric", 9, 2, 12, 2, -1, 1),
    Sketcher.Constraint("Symmetric", 6, 2, 19, 2, -1, 1),
    Sketcher.Constraint("Symmetric", 10, 3, 11, 3, -2),
    Sketcher.Constraint("Symmetric", 3, 2, 6, 2, -2),
    Sketcher.Constraint("Parallel", 1, 14),
    Sketcher.Constraint("Horizontal", 2, 2, 7, 2),
    Sketcher.Constraint("Horizontal", 1, 2, 8, 2),
    Sketcher.Constraint("Horizontal", 16, 2, 19, 2),
    Sketcher.Constraint("Horizontal", 15, 2, 20, 2),
    Sketcher.Constraint("Vertical", 7, 2, 15, 2),
    Sketcher.Constraint("Diameter", 10, 2.0),
    Sketcher.Constraint("Radius", 2, 3.0),
    Sketcher.Constraint("Angle", 1, Q("-70 deg")),
    Sketcher.Constraint("DistanceX", 10, 3, -1, 1, 23.0),
    Sketcher.Constraint("DistanceY", 10, 3, -1, 1, 23.0),
    Sketcher.Constraint("DistanceY", 8, 3, 15, 3, 45.0),
    Sketcher.Constraint("DistanceY", 0, 2, -1, 1, 16.7),
    Sketcher.Constraint("DistanceX", 0, 2, 0, 1, 56.405876),
    Sketcher.Constraint("DistanceX", 3, 2, -1, 1, 22.951981),
    Sketcher.Constraint("DistanceX", 1, 2, 2, 2, 1.707292),
])
pad5 = body.newObject("PartDesign::Pad", "Pad004")
pad5.Profile = sketch5
pad5.Length = 1.5
pad5.Reversed = True

doc.recompute()
